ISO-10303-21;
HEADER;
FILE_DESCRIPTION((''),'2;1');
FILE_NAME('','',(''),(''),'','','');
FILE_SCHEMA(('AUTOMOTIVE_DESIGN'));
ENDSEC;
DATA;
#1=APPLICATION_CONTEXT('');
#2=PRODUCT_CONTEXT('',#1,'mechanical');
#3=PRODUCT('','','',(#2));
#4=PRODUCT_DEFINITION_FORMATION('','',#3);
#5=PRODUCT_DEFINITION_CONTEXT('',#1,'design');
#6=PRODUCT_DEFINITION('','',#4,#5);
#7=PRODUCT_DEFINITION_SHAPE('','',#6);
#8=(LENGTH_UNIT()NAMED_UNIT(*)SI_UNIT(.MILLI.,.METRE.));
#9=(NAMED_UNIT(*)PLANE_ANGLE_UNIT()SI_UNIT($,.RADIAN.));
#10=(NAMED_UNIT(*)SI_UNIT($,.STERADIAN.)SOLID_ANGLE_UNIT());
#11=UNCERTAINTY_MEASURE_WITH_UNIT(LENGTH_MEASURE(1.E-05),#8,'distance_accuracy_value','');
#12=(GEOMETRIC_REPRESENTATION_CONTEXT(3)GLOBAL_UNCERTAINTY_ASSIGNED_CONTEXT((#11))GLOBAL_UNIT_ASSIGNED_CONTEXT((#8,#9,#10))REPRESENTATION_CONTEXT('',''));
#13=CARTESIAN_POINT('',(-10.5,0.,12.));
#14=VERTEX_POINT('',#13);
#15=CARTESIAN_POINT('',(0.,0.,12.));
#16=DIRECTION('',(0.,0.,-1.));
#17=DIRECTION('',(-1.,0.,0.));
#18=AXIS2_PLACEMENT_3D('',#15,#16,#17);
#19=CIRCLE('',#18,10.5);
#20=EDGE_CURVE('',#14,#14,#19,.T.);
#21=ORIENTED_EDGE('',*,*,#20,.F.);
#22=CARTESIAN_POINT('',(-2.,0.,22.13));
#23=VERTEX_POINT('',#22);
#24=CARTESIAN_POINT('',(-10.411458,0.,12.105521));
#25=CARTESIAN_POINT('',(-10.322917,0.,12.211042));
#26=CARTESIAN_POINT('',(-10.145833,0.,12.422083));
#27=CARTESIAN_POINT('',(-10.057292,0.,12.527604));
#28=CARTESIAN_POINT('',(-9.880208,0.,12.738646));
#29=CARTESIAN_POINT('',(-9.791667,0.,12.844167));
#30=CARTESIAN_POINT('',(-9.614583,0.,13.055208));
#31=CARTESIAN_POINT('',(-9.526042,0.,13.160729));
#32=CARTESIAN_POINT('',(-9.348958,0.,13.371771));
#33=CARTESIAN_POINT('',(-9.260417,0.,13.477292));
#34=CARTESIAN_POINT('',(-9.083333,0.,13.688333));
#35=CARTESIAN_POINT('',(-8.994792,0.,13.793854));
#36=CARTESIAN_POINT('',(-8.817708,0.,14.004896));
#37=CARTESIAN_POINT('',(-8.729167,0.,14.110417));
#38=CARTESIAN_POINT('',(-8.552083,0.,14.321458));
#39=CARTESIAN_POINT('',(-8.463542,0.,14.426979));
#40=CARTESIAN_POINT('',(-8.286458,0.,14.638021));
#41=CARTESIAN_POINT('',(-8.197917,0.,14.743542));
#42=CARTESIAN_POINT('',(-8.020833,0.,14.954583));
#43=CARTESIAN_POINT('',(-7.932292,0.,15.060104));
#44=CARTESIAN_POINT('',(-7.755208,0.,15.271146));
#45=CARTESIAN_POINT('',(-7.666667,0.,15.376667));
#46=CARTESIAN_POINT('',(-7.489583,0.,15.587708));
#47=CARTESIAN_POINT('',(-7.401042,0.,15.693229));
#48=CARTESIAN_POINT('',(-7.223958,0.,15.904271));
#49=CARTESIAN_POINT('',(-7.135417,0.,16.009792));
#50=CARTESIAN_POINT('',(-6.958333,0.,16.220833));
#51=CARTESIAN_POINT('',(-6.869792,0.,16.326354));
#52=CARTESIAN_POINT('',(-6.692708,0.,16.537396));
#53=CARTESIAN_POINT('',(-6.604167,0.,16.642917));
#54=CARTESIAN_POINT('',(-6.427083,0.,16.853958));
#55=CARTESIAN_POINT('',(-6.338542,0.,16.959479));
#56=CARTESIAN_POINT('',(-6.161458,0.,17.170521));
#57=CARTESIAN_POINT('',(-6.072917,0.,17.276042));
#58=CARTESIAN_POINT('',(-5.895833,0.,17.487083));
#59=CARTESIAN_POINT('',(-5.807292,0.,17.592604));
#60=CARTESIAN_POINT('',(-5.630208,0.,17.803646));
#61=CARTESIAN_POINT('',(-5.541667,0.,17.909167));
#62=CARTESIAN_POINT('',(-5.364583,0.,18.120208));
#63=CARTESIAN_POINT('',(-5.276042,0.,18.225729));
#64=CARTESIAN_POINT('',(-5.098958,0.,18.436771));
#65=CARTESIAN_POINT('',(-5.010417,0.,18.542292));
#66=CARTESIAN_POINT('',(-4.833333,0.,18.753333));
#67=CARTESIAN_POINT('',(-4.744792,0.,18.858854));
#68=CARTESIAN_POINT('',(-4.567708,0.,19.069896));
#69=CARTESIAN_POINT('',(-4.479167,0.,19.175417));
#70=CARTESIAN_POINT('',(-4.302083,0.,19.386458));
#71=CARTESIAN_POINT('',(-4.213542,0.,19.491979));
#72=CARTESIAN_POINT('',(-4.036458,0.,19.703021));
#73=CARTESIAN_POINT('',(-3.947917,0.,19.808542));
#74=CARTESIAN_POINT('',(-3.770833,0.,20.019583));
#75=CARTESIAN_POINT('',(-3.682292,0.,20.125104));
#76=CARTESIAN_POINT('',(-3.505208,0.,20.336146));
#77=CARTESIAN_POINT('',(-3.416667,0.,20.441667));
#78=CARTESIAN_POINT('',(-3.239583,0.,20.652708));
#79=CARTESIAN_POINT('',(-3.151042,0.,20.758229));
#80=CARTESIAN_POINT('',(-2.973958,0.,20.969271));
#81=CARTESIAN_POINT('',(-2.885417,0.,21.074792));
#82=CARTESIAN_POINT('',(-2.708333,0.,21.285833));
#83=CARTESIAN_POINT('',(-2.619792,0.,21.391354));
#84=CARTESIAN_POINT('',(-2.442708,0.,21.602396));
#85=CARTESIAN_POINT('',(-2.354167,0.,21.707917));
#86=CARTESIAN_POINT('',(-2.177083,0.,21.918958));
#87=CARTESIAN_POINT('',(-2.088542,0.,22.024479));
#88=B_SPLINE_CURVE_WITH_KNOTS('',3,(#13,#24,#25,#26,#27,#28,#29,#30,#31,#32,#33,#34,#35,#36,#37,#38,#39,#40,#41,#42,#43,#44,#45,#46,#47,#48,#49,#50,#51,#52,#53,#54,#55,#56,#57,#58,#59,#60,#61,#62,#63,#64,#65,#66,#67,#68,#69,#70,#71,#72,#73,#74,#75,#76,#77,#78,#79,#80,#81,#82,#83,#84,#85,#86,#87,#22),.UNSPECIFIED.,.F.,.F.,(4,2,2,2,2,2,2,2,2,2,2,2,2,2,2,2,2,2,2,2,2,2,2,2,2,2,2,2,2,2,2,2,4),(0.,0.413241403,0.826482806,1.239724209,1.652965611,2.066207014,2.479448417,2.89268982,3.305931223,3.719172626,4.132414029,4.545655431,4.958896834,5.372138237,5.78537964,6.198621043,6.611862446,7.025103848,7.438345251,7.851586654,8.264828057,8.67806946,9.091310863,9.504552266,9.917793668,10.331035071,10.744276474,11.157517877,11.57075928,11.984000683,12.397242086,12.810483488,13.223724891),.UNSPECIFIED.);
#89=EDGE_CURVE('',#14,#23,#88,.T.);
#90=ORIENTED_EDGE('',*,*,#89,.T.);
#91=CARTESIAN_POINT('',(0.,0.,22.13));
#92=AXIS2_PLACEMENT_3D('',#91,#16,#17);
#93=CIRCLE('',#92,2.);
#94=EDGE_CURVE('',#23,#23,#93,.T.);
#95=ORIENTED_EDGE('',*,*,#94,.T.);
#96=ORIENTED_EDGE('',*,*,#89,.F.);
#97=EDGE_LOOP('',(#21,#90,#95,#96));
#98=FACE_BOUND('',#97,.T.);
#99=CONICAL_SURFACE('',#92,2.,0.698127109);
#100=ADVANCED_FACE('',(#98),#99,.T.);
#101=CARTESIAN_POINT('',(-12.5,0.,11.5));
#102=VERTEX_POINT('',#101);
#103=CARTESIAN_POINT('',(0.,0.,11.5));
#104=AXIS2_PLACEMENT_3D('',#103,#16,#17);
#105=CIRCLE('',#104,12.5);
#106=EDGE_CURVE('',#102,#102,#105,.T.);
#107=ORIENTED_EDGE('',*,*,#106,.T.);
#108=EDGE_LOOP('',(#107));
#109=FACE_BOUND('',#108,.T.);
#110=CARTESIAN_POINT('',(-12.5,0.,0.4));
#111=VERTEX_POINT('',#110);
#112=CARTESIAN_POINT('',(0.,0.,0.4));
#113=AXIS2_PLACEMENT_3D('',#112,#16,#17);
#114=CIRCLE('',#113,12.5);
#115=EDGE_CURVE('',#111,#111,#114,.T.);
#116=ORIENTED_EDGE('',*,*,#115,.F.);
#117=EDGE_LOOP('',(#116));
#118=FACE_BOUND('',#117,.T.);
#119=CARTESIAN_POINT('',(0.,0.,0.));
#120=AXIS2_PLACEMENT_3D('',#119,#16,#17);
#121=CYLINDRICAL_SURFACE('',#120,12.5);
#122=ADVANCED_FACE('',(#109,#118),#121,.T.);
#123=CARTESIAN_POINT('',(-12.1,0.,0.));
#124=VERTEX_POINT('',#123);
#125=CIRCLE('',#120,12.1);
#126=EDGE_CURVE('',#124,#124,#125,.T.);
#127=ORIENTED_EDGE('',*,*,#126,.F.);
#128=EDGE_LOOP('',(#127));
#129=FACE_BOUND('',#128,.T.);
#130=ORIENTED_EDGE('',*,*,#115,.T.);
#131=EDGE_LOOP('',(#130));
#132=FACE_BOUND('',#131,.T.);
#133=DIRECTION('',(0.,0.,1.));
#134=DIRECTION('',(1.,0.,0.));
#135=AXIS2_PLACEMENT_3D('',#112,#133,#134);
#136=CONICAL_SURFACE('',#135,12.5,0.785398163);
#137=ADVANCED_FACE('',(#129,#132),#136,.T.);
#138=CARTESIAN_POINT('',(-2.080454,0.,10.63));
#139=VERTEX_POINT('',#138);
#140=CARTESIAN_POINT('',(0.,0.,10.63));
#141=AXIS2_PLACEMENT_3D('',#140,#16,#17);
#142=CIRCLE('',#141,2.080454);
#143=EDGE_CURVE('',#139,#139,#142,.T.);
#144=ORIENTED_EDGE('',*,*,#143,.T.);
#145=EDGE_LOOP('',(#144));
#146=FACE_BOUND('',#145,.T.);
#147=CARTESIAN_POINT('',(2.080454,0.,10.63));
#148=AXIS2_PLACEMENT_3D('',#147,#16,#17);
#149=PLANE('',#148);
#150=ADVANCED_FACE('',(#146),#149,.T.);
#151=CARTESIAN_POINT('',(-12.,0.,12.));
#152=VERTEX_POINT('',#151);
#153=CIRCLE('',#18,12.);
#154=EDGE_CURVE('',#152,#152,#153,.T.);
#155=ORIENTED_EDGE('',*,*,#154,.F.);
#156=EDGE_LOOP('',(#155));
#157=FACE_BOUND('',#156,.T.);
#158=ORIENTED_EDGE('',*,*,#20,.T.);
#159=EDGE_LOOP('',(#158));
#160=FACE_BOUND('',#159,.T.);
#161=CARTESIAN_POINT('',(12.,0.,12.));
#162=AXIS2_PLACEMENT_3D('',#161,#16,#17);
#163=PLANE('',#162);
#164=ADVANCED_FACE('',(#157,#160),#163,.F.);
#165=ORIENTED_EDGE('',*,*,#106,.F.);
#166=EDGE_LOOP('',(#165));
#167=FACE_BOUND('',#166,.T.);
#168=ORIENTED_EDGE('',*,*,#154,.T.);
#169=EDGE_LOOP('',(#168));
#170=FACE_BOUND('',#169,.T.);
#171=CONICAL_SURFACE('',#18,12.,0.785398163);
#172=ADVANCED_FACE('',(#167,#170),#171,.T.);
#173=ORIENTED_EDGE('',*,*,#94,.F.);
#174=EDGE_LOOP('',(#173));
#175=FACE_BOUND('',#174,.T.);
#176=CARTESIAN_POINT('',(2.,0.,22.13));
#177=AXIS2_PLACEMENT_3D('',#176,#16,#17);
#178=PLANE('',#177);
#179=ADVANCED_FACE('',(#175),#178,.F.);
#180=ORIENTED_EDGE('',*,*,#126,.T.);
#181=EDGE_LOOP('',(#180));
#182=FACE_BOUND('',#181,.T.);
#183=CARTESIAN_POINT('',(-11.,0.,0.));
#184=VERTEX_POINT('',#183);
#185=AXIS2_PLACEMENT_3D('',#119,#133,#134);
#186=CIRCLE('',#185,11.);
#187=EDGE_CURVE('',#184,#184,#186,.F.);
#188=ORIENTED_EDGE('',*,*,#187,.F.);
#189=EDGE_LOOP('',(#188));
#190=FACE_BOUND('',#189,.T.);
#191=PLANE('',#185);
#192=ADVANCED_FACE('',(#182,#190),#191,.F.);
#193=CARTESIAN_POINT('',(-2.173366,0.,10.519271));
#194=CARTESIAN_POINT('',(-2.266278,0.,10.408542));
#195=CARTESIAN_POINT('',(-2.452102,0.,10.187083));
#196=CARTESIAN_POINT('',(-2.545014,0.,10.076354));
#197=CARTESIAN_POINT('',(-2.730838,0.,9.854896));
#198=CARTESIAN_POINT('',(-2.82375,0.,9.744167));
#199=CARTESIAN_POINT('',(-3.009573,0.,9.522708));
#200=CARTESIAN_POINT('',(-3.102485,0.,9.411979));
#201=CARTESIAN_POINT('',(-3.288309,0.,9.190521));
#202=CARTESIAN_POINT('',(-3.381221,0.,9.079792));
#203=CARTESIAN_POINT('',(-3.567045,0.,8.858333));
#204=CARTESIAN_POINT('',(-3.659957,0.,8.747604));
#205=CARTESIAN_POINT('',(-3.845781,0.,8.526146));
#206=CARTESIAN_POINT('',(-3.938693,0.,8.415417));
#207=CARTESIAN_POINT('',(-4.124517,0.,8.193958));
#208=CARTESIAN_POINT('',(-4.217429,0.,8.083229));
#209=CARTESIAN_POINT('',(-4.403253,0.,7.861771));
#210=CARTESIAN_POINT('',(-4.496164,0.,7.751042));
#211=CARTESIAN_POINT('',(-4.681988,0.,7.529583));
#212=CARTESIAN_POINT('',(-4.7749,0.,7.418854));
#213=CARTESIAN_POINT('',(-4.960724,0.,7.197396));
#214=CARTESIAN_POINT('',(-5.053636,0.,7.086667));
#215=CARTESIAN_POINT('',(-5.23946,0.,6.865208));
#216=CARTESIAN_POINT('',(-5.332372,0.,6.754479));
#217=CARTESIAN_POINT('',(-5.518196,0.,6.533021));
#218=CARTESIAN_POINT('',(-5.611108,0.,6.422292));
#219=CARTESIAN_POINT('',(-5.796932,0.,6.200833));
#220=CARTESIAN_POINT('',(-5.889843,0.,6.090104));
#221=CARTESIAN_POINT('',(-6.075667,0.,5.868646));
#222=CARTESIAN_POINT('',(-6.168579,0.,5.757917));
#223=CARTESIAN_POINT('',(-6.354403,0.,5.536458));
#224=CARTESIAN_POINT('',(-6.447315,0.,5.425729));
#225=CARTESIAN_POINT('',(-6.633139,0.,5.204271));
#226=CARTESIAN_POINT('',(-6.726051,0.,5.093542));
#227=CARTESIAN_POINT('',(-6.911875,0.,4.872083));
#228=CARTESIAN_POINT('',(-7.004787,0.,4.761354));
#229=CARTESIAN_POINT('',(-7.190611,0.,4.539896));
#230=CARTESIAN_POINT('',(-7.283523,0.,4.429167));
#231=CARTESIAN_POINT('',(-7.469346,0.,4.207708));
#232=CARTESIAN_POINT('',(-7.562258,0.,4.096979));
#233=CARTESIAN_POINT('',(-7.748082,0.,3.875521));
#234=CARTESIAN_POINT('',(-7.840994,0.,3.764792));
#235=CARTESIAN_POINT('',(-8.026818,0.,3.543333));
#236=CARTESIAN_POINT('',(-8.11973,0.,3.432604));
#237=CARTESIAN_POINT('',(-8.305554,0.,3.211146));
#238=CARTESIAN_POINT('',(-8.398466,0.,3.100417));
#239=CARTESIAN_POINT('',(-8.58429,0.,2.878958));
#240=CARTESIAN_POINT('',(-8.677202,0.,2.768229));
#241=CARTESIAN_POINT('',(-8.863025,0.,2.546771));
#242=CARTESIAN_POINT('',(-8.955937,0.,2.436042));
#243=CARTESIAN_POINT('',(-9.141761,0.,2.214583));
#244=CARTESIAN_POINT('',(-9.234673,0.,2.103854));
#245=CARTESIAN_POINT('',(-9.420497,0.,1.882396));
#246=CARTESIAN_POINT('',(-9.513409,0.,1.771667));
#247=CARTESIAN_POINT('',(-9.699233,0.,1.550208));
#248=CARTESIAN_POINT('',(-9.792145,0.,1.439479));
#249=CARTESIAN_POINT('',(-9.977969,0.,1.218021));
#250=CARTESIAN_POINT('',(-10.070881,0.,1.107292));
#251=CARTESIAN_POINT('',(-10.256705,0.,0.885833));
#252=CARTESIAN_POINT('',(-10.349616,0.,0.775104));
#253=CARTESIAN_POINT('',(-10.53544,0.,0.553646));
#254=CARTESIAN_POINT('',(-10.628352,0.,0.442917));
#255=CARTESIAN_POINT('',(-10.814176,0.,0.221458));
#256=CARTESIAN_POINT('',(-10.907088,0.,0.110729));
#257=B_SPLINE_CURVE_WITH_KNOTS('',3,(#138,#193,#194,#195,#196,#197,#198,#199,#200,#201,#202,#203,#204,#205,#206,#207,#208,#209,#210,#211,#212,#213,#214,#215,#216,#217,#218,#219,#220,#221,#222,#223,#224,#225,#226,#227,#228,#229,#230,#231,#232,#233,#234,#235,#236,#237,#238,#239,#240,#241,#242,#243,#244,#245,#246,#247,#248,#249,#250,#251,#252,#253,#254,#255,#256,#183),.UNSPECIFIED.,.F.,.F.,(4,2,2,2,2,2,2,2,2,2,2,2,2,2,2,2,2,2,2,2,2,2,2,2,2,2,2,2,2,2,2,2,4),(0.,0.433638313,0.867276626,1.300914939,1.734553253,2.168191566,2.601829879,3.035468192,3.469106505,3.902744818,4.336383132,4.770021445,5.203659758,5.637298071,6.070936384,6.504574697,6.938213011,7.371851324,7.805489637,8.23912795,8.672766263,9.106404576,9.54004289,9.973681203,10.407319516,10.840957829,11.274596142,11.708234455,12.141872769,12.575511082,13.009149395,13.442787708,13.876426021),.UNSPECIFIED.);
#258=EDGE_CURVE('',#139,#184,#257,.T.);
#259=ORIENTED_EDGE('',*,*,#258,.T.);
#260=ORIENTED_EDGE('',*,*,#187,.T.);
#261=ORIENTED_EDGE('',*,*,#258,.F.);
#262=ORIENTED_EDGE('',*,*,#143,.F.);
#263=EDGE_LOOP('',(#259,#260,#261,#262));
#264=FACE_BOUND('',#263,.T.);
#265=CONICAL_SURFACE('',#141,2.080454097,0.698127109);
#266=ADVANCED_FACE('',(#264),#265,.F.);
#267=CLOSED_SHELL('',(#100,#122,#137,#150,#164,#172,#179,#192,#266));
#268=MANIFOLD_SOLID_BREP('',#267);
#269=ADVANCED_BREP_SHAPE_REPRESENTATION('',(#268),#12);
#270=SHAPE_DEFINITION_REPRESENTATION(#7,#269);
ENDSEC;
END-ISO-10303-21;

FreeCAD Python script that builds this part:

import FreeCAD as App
import Part
import Sketcher
Q = App.Units.Quantity


def add_polygon(sketch, points):
    """Adds a closed chain of lines whose ends are joined by coincident constraints."""
    first, n = sketch.GeometryCount, len(points)
    for a, b in zip(points, points[1:] + points[:1]):
        sketch.addGeometry(Part.LineSegment(App.Vector(*a, 0), App.Vector(*b, 0)), False)
    for i in range(n):
        sketch.addConstraint(Sketcher.Constraint("Coincident", first + i, 2, first + (i + 1) % n, 1))

doc = App.newDocument("Part")
body = doc.addObject("PartDesign::Body", "Body")

sketch1 = body.newObject("Sketcher::SketchObject", "Sketch")
sketch1.AttachmentSupport = (doc.getObject("XZ_Plane"), [""])
sketch1.MapMode = "FlatFace"
add_polygon(sketch1, [(12.1, 0), (0, 0), (0, 22.1), (2, 22.1), (10.5, 12), (12, 12), (12.5, 11.5), (12.5, 0.4)])
sketch1.addConstraint([
    Sketcher.Constraint("Horizontal", 0),
    Sketcher.Constraint("Vertical", 1),
    Sketcher.Constraint("Horizontal", 2),
    Sketcher.Constraint("Horizontal", 4),
    Sketcher.Constraint("Vertical", 6),
    Sketcher.Constraint("Coincident", 0, 2, -1, 1),
    Sketcher.Constraint("Perpendicular", 5, 7),
    Sketcher.Constraint("DistanceX", 2, 1, 2, 2, Q("2 mm")),
    Sketcher.Constraint("Angle", 5, Q("-45 deg")),
    Sketcher.Constraint("DistanceX", 0, 2, 0, 1, Q("12.1 mm")),
    Sketcher.Constraint("DistanceX", 4, 1, 4, 2, Q("1.5 mm")),
    Sketcher.Constraint("DistanceY", 6, 2, 6, 1, Q("11.1 mm")),
    Sketcher.Constraint("DistanceY", -1, 1, 3, 2, Q("12 mm")),
    Sketcher.Constraint("DistanceX", -1, 1, 4, 2, Q("12 mm")),
    Sketcher.Constraint("DistanceY", 1, 1, 1, 2, Q("22.13 mm")),
])
revolution = body.newObject("PartDesign::Revolution", "Revolution")
revolution.Profile = sketch1
revolution.ReferenceAxis = (sketch1, ["V_Axis"])
revolution.Angle = 360

sketch2 = body.newObject("Sketcher::SketchObject", "Sketch001")
sketch2.AttachmentSupport = (doc.getObject("XZ_Plane"), [""])
sketch2.MapMode = "FlatFace"
add_polygon(sketch2, [(11.4, -0.5), (0, -0.5), (0, 10.6), (2.1, 10.6)])
sketch2.addConstraint([
    Sketcher.Constraint("Horizontal", 0),
    Sketcher.Constraint("Vertical", 1),
    Sketcher.Constraint("Horizontal", 2),
    Sketcher.Constraint("PointOnObject", 0, 2, -2),
    Sketcher.Constraint("DistanceY", 1, 1, 1, 2, Q("11.13 mm")),
    Sketcher.Constraint("DistanceY", 0, 2, -1, 1, Q("0.5 mm")),
    Sketcher.Constraint("DistanceX", 0, 2, 0, 1, Q("11.419546 mm")),
    Sketcher.Constraint("DistanceX", 2, 1, 2, 2, Q("2.080454 mm")),
])
groove = body.newObject("PartDesign::Groove", "Groove")
groove.Profile = sketch2
groove.ReferenceAxis = (sketch2, ["V_Axis"])
groove.Angle = 360

doc.recompute()
